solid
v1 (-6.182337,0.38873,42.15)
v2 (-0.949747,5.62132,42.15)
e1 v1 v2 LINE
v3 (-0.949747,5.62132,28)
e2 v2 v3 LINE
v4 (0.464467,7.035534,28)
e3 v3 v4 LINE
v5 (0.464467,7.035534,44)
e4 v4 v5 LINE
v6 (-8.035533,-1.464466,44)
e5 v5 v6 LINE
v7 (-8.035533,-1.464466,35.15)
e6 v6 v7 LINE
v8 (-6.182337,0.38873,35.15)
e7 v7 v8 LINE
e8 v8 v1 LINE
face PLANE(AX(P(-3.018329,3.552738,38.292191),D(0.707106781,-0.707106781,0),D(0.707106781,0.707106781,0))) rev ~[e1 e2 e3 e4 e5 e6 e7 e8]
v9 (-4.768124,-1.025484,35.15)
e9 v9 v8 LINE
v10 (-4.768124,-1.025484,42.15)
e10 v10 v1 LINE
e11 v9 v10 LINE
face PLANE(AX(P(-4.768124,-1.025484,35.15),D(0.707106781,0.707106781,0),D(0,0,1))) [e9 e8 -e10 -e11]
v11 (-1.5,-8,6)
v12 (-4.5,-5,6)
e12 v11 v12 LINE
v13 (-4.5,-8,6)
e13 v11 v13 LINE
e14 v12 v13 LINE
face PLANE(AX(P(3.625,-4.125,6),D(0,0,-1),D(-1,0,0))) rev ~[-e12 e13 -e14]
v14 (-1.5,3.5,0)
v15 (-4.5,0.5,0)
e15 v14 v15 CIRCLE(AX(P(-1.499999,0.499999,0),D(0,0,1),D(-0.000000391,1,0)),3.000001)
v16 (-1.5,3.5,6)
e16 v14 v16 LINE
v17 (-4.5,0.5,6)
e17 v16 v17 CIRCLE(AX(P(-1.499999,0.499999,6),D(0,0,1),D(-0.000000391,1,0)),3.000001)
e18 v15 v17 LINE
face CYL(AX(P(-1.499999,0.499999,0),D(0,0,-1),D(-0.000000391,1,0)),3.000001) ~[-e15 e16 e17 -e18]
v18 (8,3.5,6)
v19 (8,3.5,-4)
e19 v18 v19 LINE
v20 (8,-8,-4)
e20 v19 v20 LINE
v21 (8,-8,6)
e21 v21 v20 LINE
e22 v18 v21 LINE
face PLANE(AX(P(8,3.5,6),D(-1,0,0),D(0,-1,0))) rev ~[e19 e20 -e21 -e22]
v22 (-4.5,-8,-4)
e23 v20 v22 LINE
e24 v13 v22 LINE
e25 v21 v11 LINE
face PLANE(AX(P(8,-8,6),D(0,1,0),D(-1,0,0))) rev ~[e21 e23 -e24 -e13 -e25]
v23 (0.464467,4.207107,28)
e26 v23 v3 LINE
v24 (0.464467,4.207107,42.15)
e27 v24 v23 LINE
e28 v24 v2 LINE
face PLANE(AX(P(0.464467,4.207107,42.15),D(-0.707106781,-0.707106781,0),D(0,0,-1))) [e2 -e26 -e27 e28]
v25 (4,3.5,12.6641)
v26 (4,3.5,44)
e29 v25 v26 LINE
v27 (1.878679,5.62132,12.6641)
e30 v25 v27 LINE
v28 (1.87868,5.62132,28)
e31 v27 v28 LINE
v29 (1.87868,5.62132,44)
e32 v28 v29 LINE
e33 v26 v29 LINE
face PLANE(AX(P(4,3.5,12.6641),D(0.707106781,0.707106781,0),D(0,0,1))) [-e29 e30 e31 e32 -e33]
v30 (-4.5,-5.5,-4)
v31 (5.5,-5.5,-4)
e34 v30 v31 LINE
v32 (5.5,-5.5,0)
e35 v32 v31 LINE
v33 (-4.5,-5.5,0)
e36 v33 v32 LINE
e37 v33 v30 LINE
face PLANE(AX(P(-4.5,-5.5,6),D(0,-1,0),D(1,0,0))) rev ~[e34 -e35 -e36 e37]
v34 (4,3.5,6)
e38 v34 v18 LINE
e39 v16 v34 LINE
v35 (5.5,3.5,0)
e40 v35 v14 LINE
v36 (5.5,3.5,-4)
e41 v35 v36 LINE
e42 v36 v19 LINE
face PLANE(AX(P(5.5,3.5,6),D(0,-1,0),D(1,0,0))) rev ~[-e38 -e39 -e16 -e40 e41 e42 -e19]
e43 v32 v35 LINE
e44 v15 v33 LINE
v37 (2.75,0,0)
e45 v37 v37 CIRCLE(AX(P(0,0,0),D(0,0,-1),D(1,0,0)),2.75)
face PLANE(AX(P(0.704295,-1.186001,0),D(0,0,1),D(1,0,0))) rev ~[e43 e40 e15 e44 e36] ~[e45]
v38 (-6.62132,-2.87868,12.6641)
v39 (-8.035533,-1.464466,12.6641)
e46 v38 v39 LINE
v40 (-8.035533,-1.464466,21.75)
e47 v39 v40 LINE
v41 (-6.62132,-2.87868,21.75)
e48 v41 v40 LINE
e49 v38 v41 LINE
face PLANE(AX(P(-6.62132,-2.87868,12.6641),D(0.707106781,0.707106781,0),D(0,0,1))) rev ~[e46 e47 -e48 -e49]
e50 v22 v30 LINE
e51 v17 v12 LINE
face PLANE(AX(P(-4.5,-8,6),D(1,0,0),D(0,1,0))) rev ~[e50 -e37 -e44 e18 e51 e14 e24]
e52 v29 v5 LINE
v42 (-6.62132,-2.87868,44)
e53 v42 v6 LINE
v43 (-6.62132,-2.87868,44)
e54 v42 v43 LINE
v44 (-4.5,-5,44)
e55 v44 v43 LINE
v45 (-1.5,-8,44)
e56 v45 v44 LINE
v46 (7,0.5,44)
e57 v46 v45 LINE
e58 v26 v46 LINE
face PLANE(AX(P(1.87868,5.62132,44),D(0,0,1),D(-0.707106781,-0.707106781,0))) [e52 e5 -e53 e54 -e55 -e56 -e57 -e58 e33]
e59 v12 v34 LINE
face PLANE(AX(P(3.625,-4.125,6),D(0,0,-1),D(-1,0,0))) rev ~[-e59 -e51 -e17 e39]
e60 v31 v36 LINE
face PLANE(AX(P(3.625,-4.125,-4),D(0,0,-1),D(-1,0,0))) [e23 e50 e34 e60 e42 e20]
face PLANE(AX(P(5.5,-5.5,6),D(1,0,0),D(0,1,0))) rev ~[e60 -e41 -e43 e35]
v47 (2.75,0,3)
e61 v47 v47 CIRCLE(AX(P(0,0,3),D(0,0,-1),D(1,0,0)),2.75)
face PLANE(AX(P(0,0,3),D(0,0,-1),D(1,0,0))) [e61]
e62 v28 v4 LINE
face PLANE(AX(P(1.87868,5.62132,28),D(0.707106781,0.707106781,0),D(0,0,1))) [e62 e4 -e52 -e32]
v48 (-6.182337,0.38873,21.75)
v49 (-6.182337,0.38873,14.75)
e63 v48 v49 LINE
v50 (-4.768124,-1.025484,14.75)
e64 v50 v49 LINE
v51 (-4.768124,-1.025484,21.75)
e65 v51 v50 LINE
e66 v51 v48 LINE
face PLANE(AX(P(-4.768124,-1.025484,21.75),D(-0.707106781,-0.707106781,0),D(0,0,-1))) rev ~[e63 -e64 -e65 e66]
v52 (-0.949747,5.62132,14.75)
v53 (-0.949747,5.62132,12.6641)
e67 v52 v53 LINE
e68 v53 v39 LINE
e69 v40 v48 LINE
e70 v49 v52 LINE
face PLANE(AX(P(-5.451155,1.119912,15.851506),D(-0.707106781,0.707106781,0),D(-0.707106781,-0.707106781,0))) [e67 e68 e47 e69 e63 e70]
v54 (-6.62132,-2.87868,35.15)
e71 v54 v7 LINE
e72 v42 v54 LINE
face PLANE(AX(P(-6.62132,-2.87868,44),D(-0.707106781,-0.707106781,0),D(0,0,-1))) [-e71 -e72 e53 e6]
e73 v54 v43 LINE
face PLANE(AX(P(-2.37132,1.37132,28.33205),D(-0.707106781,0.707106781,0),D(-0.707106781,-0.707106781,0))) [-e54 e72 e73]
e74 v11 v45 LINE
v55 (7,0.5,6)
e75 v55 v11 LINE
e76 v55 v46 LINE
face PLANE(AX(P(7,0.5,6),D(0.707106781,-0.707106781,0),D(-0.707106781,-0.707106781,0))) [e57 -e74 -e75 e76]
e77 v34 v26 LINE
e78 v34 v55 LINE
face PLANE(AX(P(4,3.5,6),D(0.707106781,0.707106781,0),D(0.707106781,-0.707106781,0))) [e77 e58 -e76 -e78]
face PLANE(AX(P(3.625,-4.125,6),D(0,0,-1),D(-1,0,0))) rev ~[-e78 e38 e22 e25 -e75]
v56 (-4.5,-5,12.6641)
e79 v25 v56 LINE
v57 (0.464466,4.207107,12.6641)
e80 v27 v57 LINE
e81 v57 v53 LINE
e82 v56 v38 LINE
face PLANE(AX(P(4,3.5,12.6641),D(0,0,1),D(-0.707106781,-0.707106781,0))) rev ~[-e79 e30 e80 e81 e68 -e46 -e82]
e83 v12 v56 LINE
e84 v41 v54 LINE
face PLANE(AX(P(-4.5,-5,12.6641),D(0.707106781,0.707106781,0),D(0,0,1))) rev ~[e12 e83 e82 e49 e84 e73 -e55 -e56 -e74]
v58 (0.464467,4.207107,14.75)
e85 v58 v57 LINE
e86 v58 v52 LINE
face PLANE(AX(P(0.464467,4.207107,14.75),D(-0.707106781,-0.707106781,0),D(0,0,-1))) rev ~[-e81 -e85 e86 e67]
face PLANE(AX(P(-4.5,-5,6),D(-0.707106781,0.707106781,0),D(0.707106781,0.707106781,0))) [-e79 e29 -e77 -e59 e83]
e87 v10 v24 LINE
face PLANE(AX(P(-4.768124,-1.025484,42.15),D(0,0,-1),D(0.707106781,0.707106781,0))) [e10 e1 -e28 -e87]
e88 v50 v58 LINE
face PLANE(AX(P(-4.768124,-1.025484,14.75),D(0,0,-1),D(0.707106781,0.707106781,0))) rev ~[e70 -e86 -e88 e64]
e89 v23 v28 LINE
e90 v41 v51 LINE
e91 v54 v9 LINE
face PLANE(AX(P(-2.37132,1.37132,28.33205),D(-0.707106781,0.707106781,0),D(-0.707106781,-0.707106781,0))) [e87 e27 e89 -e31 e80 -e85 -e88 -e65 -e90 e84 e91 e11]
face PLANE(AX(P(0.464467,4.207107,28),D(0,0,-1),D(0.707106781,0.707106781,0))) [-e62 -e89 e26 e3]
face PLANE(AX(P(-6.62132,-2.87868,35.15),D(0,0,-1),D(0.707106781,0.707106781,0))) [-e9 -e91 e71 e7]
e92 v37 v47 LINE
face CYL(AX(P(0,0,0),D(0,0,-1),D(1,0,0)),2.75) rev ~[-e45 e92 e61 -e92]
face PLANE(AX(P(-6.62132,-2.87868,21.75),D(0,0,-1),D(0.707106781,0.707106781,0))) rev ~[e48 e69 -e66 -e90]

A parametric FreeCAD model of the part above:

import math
import FreeCAD as App
import Part
import Sketcher
Q = App.Units.Quantity

doc = App.newDocument("Part")
body = doc.addObject("PartDesign::Body", "Body")

# Sketch on XY plane
sketch1 = doc.addObject("Sketcher::SketchObject", "Sketch")
body.addObject(sketch1)
sketch1.AttachmentSupport = (doc.XY_Plane, [""])
sketch1.MapMode = "FlatFace"
sketch1.addGeometry(Part.LineSegment(App.Vector(5.5, -5.5, 0), App.Vector(5.5, 3.5, 0)), False)
sketch1.addGeometry(Part.LineSegment(App.Vector(5.5, 3.5, 0), App.Vector(-1.5, 3.5, 0)), False)
sketch1.addGeometry(Part.ArcOfCircle(Part.Circle(App.Vector(-1.5, 0.5, 0), App.Vector(0, 0, 1), 3), math.radians(90), math.radians(180)), False)
sketch1.addGeometry(Part.LineSegment(App.Vector(-4.5, 0.5, 0), App.Vector(-4.5, -5.5, 0)), False)
sketch1.addGeometry(Part.LineSegment(App.Vector(-4.5, -5.5, 0), App.Vector(5.5, -5.5, 0)), False)
sketch1.addConstraint(Sketcher.Constraint("Coincident", 0, 2, 1, 1))
sketch1.addConstraint(Sketcher.Constraint("Tangent", 1, 2, 2, 1))
sketch1.addConstraint(Sketcher.Constraint("Tangent", 2, 2, 3, 1))
sketch1.addConstraint(Sketcher.Constraint("Coincident", 3, 2, 4, 1))
sketch1.addConstraint(Sketcher.Constraint("Coincident", 4, 2, 0, 1))
sketch1.addConstraint(Sketcher.Constraint("Vertical", 0))
sketch1.addConstraint(Sketcher.Constraint("Horizontal", 1))
sketch1.addConstraint(Sketcher.Constraint("Vertical", 3))
sketch1.addConstraint(Sketcher.Constraint("Horizontal", 4))
sketch1.addConstraint(Sketcher.Constraint("Radius", 2, Q("3.000001 mm")))
sketch1.addConstraint(Sketcher.Constraint("DistanceX", 1, 2, 1, 1, Q("7 mm")))
sketch1.addConstraint(Sketcher.Constraint("DistanceY", 0, 1, 0, 2, Q("9 mm")))
sketch1.addConstraint(Sketcher.Constraint("DistanceX", 2, 3, -1, 1, Q("1.499999 mm")))
sketch1.addConstraint(Sketcher.Constraint("DistanceY", -1, 1, 2, 3, Q("0.499999 mm")))
pad1 = doc.addObject("PartDesign::Pad", "Pad")
body.addObject(pad1)
pad1.Profile = sketch1
pad1.Length = 6

# Sketch on XY plane
sketch2 = doc.addObject("Sketcher::SketchObject", "Sketch001")
body.addObject(sketch2)
sketch2.AttachmentSupport = (doc.XY_Plane, [""])
sketch2.MapMode = "FlatFace"
sketch2.AttachmentOffset = App.Placement(App.Vector(0, 0, 6), App.Rotation())
sketch2.addGeometry(Part.LineSegment(App.Vector(8, 3.5, 0), App.Vector(5.5, 3.5, 0)), False)
sketch2.addGeometry(Part.LineSegment(App.Vector(5.5, 3.5, 0), App.Vector(5.5, -5.5, 0)), False)
sketch2.addGeometry(Part.LineSegment(App.Vector(5.5, -5.5, 0), App.Vector(-4.5, -5.5, 0)), False)
sketch2.addGeometry(Part.LineSegment(App.Vector(-4.5, -5.5, 0), App.Vector(-4.5, -8, 0)), False)
sketch2.addGeometry(Part.LineSegment(App.Vector(-4.5, -8, 0), App.Vector(8, -8, 0)), False)
sketch2.addGeometry(Part.LineSegment(App.Vector(8, -8, 0), App.Vector(8, 3.5, 0)), False)
sketch2.addConstraint(Sketcher.Constraint("Coincident", 0, 2, 1, 1))
sketch2.addConstraint(Sketcher.Constraint("Coincident", 1, 2, 2, 1))
sketch2.addConstraint(Sketcher.Constraint("Coincident", 2, 2, 3, 1))
sketch2.addConstraint(Sketcher.Constraint("Coincident", 3, 2, 4, 1))
sketch2.addConstraint(Sketcher.Constraint("Coincident", 4, 2, 5, 1))
sketch2.addConstraint(Sketcher.Constraint("Coincident", 5, 2, 0, 1))
sketch2.addConstraint(Sketcher.Constraint("Horizontal", 0))
sketch2.addConstraint(Sketcher.Constraint("Vertical", 1))
sketch2.addConstraint(Sketcher.Constraint("Horizontal", 2))
sketch2.addConstraint(Sketcher.Constraint("Vertical", 3))
sketch2.addConstraint(Sketcher.Constraint("Horizontal", 4))
sketch2.addConstraint(Sketcher.Constraint("Vertical", 5))
sketch2.addConstraint(Sketcher.Constraint("Equal", 0, 3))
sketch2.addConstraint(Sketcher.Constraint("DistanceX", 2, 2, 2, 1, Q("10 mm")))
sketch2.addConstraint(Sketcher.Constraint("DistanceY", 1, 2, 1, 1, Q("9 mm")))
sketch2.addConstraint(Sketcher.Constraint("DistanceX", 0, 2, 0, 1, Q("2.5 mm")))
sketch2.addConstraint(Sketcher.Constraint("DistanceY", 3, 2, -1, 1, Q("8 mm")))
sketch2.addConstraint(Sketcher.Constraint("DistanceX", -1, 1, 4, 2, Q("8 mm")))
pad2 = doc.addObject("PartDesign::Pad", "Pad001")
body.addObject(pad2)
pad2.Profile = sketch2
pad2.Length = 10
pad2.Reversed = True

# Sketch on XY plane
sketch3 = doc.addObject("Sketcher::SketchObject", "Sketch002")
body.addObject(sketch3)
sketch3.AttachmentSupport = (doc.XY_Plane, [""])
sketch3.MapMode = "FlatFace"
sketch3.addGeometry(Part.Circle(App.Vector(0, 0, 0), App.Vector(0, 0, 1), 2.8), False)
sketch3.addConstraint(Sketcher.Constraint("Coincident", 0, 3, -1, 1))
sketch3.addConstraint(Sketcher.Constraint("Diameter", 0, Q("5.5 mm")))
pocket1 = doc.addObject("PartDesign::Pocket", "Pocket")
body.addObject(pocket1)
pocket1.Profile = sketch3
pocket1.Length = 3
pocket1.Reversed = True

# Sketch on XY plane
sketch4 = doc.addObject("Sketcher::SketchObject", "Sketch003")
body.addObject(sketch4)
sketch4.AttachmentSupport = (doc.XY_Plane, [""])
sketch4.MapMode = "FlatFace"
sketch4.AttachmentOffset = App.Placement(App.Vector(0, 0, 6), App.Rotation())
sketch4.addGeometry(Part.LineSegment(App.Vector(4, 3.5, 0), App.Vector(-4.5, -5, 0)), False)
sketch4.addGeometry(Part.LineSegment(App.Vector(-4.5, -5, 0), App.Vector(-1.5, -8, 0)), False)
sketch4.addGeometry(Part.LineSegment(App.Vector(-1.5, -8, 0), App.Vector(7, 0.5, 0)), False)
sketch4.addGeometry(Part.LineSegment(App.Vector(7, 0.5, 0), App.Vector(4, 3.5, 0)), False)
sketch4.addConstraint(Sketcher.Constraint("Coincident", 0, 2, 1, 1))
sketch4.addConstraint(Sketcher.Constraint("Coincident", 1, 2, 2, 1))
sketch4.addConstraint(Sketcher.Constraint("Coincident", 2, 2, 3, 1))
sketch4.addConstraint(Sketcher.Constraint("Coincident", 3, 2, 0, 1))
sketch4.addConstraint(Sketcher.Constraint("Perpendicular", 0, 1))
sketch4.addConstraint(Sketcher.Constraint("Perpendicular", 1, 2))
sketch4.addConstraint(Sketcher.Constraint("Perpendicular", 2, 3))
sketch4.addConstraint(Sketcher.Constraint("Angle", 0, Q("-135 deg")))
sketch4.addConstraint(Sketcher.Constraint("DistanceY", 0, 2, -1, 1, Q("5 mm")))
sketch4.addConstraint(Sketcher.Constraint("DistanceY", 1, 2, -1, 1, Q("8 mm")))
sketch4.addConstraint(Sketcher.Constraint("DistanceX", -1, 1, 2, 2, Q("7 mm")))
sketch4.addConstraint(Sketcher.Constraint("DistanceX", 0, 2, -1, 1, Q("4.5 mm")))
pad3 = doc.addObject("PartDesign::Pad", "Pad002")
body.addObject(pad3)
pad3.Profile = sketch4
pad3.Length = 38

# Sketch on an angled plane
sketch5 = doc.addObject("Sketcher::SketchObject", "Sketch004")
body.addObject(sketch5)
sketch5.Placement = App.Placement(App.Vector(0.25, -0.25, 0), App.Rotation(App.Vector(-0.707106781, -0.707106781, 0), App.Vector(0, 0, 0.999999999), App.Vector(-0.707106781, 0.707106781, 0), "ZXY"))
sketch5.addGeometry(Part.LineSegment(App.Vector(-5, 44, 0), App.Vector(-5, 13, 0)), False)
sketch5.addGeometry(Part.LineSegment(App.Vector(-5, 13, 0), App.Vector(7, 13, 0)), False)
sketch5.addGeometry(Part.LineSegment(App.Vector(7, 13, 0), App.Vector(7, 44, 0)), False)
sketch5.addGeometry(Part.LineSegment(App.Vector(7, 44, 0), App.Vector(-5, 44, 0)), False)
sketch5.addConstraint(Sketcher.Constraint("Coincident", 0, 2, 1, 1))
sketch5.addConstraint(Sketcher.Constraint("Coincident", 1, 2, 2, 1))
sketch5.addConstraint(Sketcher.Constraint("Coincident", 2, 2, 3, 1))
sketch5.addConstraint(Sketcher.Constraint("Coincident", 3, 2, 0, 1))
sketch5.addConstraint(Sketcher.Constraint("Vertical", 0))
sketch5.addConstraint(Sketcher.Constraint("Horizontal", 1))
sketch5.addConstraint(Sketcher.Constraint("Vertical", 2))
sketch5.addConstraint(Sketcher.Constraint("Horizontal", 3))
sketch5.addConstraint(Sketcher.Constraint("DistanceY", -1, 1, 2, 2, Q("44 mm")))
sketch5.addConstraint(Sketcher.Constraint("DistanceY", 0, 2, 0, 1, Q("31.3359 mm")))
sketch5.addConstraint(Sketcher.Constraint("DistanceX", 0, 2, -1, 1, Q("5.3033 mm")))
sketch5.addConstraint(Sketcher.Constraint("DistanceX", 1, 1, 1, 2, Q("12.020815 mm")))
pad4 = doc.addObject("PartDesign::Pad", "Pad003")
body.addObject(pad4)
pad4.Profile = sketch5
pad4.Length = 3

# Sketch on an angled plane
sketch6 = doc.addObject("Sketcher::SketchObject", "Sketch005")
body.addObject(sketch6)
sketch6.Placement = App.Placement(App.Vector(-1.87132, 1.87132, 0), App.Rotation(App.Vector(-0.707106781, -0.707106781, 0), App.Vector(0, 0, 0.999999999), App.Vector(-0.707106781, 0.707106781, 0), "ZXY"))
sketch6.addGeometry(Part.LineSegment(App.Vector(6.7, 44, 0), App.Vector(-5.3, 44, 0)), False)
sketch6.addGeometry(Part.LineSegment(App.Vector(-5.3, 44, 0), App.Vector(-5.3, 28, 0)), False)
sketch6.addGeometry(Part.LineSegment(App.Vector(-5.3, 28, 0), App.Vector(-3.3, 28, 0)), False)
sketch6.addGeometry(Part.LineSegment(App.Vector(-3.3, 28, 0), App.Vector(-3.3, 42.1, 0)), False)
sketch6.addGeometry(Part.LineSegment(App.Vector(-3.3, 42.1, 0), App.Vector(4.1, 42.1, 0)), False)
sketch6.addGeometry(Part.LineSegment(App.Vector(4.1, 42.1, 0), App.Vector(4.1, 35.1, 0)), False)
sketch6.addGeometry(Part.LineSegment(App.Vector(4.1, 35.1, 0), App.Vector(6.7, 35.1, 0)), False)
sketch6.addGeometry(Part.LineSegment(App.Vector(6.7, 35.1, 0), App.Vector(6.7, 44, 0)), False)
sketch6.addGeometry(Part.LineSegment(App.Vector(4.1, 14.7, 0), App.Vector(-3.3, 14.7, 0)), False)
sketch6.addGeometry(Part.LineSegment(App.Vector(-3.3, 14.7, 0), App.Vector(-3.3, 12.7, 0)), False)
sketch6.addGeometry(Part.LineSegment(App.Vector(-3.3, 12.7, 0), App.Vector(6.7, 12.7, 0)), False)
sketch6.addGeometry(Part.LineSegment(App.Vector(6.7, 12.7, 0), App.Vector(6.7, 21.7, 0)), False)
sketch6.addGeometry(Part.LineSegment(App.Vector(6.7, 21.7, 0), App.Vector(4.1, 21.7, 0)), False)
sketch6.addGeometry(Part.LineSegment(App.Vector(4.1, 21.7, 0), App.Vector(4.1, 14.7, 0)), False)
sketch6.addConstraint(Sketcher.Constraint("Coincident", 0, 2, 1, 1))
sketch6.addConstraint(Sketcher.Constraint("Coincident", 1, 2, 2, 1))
sketch6.addConstraint(Sketcher.Constraint("Coincident", 2, 2, 3, 1))
sketch6.addConstraint(Sketcher.Constraint("Coincident", 3, 2, 4, 1))
sketch6.addConstraint(Sketcher.Constraint("Coincident", 4, 2, 5, 1))
sketch6.addConstraint(Sketcher.Constraint("Coincident", 5, 2, 6, 1))
sketch6.addConstraint(Sketcher.Constraint("Coincident", 6, 2, 7, 1))
sketch6.addConstraint(Sketcher.Constraint("Coincident", 7, 2, 0, 1))
sketch6.addConstraint(Sketcher.Constraint("Coincident", 8, 2, 9, 1))
sketch6.addConstraint(Sketcher.Constraint("Coincident", 9, 2, 10, 1))
sketch6.addConstraint(Sketcher.Constraint("Coincident", 10, 2, 11, 1))
sketch6.addConstraint(Sketcher.Constraint("Coincident", 11, 2, 12, 1))
sketch6.addConstraint(Sketcher.Constraint("Coincident", 12, 2, 13, 1))
sketch6.addConstraint(Sketcher.Constraint("Coincident", 13, 2, 8, 1))
sketch6.addConstraint(Sketcher.Constraint("Horizontal", 0))
sketch6.addConstraint(Sketcher.Constraint("Vertical", 1))
sketch6.addConstraint(Sketcher.Constraint("Horizontal", 2))
sketch6.addConstraint(Sketcher.Constraint("Vertical", 3))
sketch6.addConstraint(Sketcher.Constraint("Horizontal", 4))
sketch6.addConstraint(Sketcher.Constraint("Vertical", 5))
sketch6.addConstraint(Sketcher.Constraint("Horizontal", 6))
sketch6.addConstraint(Sketcher.Constraint("Vertical", 7))
sketch6.addConstraint(Sketcher.Constraint("Horizontal", 8))
sketch6.addConstraint(Sketcher.Constraint("Vertical", 9))
sketch6.addConstraint(Sketcher.Constraint("Horizontal", 10))
sketch6.addConstraint(Sketcher.Constraint("Vertical", 11))
sketch6.addConstraint(Sketcher.Constraint("Horizontal", 12))
sketch6.addConstraint(Sketcher.Constraint("Vertical", 13))
sketch6.addConstraint(Sketcher.Constraint("Vertical", 3, 2, 8, 2))
sketch6.addConstraint(Sketcher.Constraint("Vertical", 7, 2, 10, 2))
sketch6.addConstraint(Sketcher.Constraint("Vertical", 5, 2, 12, 2))
sketch6.addConstraint(Sketcher.Constraint("Equal", 5, 13))
sketch6.addConstraint(Sketcher.Constraint("DistanceX", 2, 1, 2, 2, Q("2 mm")))
sketch6.addConstraint(Sketcher.Constraint("DistanceY", 1, 2, 1, 1, Q("16 mm")))
sketch6.addConstraint(Sketcher.Constraint("DistanceY", 5, 2, 5, 1, Q("7 mm")))
sketch6.addConstraint(Sketcher.Constraint("DistanceX", 4, 1, 4, 2, Q("7.4 mm")))
sketch6.addConstraint(Sketcher.Constraint("DistanceY", -1, 1, 0, 2, Q("44 mm")))
sketch6.addConstraint(Sketcher.Constraint("DistanceY", 3, 1, 3, 2, Q("14.15 mm")))
sketch6.addConstraint(Sketcher.Constraint("DistanceY", 8, 2, 5, 2, Q("20.4 mm")))
sketch6.addConstraint(Sketcher.Constraint("DistanceY", 9, 2, 9, 1, Q("2.0859 mm")))
sketch6.addConstraint(Sketcher.Constraint("DistanceX", 0, 2, -1, 1, Q("5.303301 mm")))
sketch6.addConstraint(Sketcher.Constraint("DistanceX", 0, 2, 0, 1, Q("12.020815 mm")))
pad5 = doc.addObject("PartDesign::Pad", "Pad004")
body.addObject(pad5)
pad5.Profile = sketch6
pad5.Length = 2

doc.recompute()
